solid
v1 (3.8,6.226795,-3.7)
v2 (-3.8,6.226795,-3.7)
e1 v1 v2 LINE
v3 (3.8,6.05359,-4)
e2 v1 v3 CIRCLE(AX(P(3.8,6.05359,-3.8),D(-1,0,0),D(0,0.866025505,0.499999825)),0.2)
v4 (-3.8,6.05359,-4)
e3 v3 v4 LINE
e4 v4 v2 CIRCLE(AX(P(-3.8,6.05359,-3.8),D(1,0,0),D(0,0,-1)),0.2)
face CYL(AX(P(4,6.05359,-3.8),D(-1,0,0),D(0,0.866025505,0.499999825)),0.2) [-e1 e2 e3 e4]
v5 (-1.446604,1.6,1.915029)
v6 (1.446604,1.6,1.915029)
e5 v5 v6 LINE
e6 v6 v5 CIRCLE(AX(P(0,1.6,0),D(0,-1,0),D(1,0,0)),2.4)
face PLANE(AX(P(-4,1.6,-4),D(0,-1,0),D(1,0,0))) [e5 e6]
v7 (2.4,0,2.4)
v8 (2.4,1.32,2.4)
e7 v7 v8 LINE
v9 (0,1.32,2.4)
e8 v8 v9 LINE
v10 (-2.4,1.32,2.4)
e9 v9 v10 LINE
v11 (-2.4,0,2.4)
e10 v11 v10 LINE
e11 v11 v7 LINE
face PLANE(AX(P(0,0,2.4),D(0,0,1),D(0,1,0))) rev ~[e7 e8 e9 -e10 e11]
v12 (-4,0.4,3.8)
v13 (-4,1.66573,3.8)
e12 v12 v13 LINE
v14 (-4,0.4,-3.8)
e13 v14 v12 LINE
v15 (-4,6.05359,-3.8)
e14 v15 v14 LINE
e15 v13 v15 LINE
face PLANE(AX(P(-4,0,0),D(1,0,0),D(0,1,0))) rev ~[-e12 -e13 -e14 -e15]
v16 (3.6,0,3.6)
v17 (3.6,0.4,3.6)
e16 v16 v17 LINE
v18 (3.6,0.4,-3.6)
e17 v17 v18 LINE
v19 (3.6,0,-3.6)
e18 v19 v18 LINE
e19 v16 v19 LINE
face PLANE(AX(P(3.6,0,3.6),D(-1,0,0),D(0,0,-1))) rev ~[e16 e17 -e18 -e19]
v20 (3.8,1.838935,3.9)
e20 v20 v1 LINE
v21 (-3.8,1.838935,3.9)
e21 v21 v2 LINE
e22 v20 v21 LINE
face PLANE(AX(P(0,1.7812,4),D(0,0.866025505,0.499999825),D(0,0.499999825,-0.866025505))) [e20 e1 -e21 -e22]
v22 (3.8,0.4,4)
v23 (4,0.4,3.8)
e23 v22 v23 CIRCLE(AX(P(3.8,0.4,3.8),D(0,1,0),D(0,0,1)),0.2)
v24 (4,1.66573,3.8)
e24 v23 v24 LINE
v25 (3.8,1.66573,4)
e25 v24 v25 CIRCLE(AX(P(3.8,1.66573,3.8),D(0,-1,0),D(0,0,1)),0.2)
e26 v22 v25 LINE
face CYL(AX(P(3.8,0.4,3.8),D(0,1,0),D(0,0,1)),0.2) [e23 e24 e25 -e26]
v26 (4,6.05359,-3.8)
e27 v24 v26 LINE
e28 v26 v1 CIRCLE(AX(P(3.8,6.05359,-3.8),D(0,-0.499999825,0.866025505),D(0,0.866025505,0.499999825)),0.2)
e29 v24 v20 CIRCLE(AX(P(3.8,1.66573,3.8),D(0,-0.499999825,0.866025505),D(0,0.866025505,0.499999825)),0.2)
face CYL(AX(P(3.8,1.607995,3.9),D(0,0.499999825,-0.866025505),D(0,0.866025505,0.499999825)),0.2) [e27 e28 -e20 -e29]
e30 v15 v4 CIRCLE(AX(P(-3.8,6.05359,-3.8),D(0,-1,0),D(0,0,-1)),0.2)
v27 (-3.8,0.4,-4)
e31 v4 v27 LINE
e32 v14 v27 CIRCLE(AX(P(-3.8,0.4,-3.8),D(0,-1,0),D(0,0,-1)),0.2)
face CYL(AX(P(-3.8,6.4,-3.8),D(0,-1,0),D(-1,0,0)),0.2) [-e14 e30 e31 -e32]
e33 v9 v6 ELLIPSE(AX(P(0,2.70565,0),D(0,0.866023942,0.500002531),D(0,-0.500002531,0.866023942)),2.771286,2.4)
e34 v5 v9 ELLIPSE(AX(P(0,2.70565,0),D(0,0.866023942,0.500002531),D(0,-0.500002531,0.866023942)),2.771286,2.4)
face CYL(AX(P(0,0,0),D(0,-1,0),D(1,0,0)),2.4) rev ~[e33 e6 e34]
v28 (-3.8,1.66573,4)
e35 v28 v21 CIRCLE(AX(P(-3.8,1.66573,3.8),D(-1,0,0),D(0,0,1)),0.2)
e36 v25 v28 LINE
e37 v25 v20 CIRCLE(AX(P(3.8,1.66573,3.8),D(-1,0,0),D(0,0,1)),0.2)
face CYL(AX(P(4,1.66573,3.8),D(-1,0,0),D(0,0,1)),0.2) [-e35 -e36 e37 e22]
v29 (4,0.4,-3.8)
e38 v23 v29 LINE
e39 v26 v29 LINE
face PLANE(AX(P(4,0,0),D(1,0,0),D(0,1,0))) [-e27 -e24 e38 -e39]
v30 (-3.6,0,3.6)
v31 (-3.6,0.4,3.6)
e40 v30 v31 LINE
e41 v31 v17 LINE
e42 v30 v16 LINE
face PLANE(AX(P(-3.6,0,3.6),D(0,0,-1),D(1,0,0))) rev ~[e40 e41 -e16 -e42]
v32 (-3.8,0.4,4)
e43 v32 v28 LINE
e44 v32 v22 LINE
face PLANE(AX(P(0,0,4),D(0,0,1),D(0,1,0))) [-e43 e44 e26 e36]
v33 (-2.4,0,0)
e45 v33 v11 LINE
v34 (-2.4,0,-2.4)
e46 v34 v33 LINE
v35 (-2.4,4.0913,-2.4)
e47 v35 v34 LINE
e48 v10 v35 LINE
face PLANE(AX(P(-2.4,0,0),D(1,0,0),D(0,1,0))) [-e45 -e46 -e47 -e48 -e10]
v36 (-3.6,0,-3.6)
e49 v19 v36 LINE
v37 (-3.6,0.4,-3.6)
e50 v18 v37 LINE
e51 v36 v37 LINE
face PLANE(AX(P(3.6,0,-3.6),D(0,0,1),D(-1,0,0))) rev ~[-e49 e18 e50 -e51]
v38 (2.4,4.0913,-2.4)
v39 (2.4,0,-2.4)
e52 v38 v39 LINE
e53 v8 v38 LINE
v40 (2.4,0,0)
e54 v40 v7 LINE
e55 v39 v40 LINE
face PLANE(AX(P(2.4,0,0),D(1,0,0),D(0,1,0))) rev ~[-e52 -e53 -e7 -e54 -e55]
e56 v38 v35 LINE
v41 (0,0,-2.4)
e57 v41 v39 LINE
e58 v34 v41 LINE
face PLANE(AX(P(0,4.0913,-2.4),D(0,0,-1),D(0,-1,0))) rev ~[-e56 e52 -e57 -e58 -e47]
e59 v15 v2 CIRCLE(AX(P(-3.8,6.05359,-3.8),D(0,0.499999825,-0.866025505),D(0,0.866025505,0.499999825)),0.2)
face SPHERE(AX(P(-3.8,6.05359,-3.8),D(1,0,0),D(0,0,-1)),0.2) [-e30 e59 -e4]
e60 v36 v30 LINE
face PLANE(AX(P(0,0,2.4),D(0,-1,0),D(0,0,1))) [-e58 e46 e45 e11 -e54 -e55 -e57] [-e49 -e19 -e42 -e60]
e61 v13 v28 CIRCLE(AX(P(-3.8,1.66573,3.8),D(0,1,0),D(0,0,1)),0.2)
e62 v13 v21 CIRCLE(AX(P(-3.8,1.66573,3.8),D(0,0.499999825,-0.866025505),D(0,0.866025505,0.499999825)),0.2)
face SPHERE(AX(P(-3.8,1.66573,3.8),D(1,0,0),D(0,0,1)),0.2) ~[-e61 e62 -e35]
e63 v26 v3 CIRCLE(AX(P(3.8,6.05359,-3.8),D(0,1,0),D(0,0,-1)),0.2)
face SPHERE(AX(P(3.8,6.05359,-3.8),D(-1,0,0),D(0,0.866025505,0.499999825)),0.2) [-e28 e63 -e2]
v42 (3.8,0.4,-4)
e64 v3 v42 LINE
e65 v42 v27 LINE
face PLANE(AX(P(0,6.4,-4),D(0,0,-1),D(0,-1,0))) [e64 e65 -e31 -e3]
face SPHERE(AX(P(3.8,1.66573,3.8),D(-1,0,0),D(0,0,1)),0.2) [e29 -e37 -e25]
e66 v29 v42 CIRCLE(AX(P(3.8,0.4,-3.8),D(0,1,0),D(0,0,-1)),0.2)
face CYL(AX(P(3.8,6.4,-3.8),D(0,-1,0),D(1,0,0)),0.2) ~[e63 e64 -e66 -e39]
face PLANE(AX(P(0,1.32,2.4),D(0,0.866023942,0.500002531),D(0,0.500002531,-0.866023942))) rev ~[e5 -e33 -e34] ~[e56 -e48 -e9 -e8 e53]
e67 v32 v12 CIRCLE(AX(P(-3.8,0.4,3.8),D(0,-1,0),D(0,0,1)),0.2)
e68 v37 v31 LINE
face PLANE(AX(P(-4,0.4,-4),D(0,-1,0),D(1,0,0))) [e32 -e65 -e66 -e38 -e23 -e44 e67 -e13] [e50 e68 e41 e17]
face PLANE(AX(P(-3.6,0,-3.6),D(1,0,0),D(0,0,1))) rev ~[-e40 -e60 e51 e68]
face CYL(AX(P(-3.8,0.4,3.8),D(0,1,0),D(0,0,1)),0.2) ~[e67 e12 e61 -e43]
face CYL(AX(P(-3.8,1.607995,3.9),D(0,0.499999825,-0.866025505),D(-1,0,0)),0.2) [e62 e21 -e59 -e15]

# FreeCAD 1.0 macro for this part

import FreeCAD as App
import Part
import Sketcher
from FreeCAD import Vector
Q = App.Units.Quantity


def edges_at(feature, points):
    """Names of the edges that pass closest to the given points."""
    edges = feature.Shape.Edges
    near = lambda p: min(range(len(edges)), key=lambda i: edges[i].distToShape(Part.Vertex(*p))[0])
    return sorted({f"Edge{near(p) + 1}" for p in points})


def add_polygon(sketch, points):
    """Adds a closed chain of lines whose ends are joined by coincident constraints."""
    first, n = sketch.GeometryCount, len(points)
    for a, b in zip(points, points[1:] + points[:1]):
        sketch.addGeometry(Part.LineSegment(App.Vector(*a, 0), App.Vector(*b, 0)), False)
    for i in range(n):
        sketch.addConstraint(Sketcher.Constraint("Coincident", first + i, 2, first + (i + 1) % n, 1))

doc = App.newDocument("Part")
body = doc.addObject("PartDesign::Body", "Body")

sketch1 = doc.addObject("Sketcher::SketchObject", "Sketch")
body.addObject(sketch1)
sketch1.AttachmentSupport = (doc.YZ_Plane, [""])
sketch1.MapMode = "FlatFace"
add_polygon(sketch1, [(1.8, 4), (0, 4), (0, -4), (6.4, -4)])
sketch1.addConstraint([
    Sketcher.Constraint("Horizontal", 0),
    Sketcher.Constraint("Vertical", 1),
    Sketcher.Constraint("Horizontal", 2),
    Sketcher.Constraint("Symmetric", 0, 2, 1, 2, -1, 1),
    Sketcher.Constraint("DistanceY", 1, 2, 1, 1, Q("8 mm")),
    Sketcher.Constraint("DistanceX", 2, 1, 2, 2, Q("6.4 mm")),
    Sketcher.Constraint("Angle", 3, Q("120 deg")),
])
pad1 = doc.addObject("PartDesign::Pad", "Pad")
body.addObject(pad1)
pad1.Profile = sketch1
pad1.Length = 8
pad1.Midplane = True

sketch2 = doc.addObject("Sketcher::SketchObject", "Sketch001")
body.addObject(sketch2)
sketch2.AttachmentSupport = (doc.YZ_Plane, [""])
sketch2.MapMode = "FlatFace"
add_polygon(sketch2, [(1.3, 2.4), (0, 2.4), (0, -2.4), (4.1, -2.4)])
sketch2.addConstraint([
    Sketcher.Constraint("Horizontal", 0),
    Sketcher.Constraint("Vertical", 1),
    Sketcher.Constraint("Horizontal", 2),
    Sketcher.Constraint("Symmetric", 0, 2, 1, 2, -1, 1),
    Sketcher.Constraint("DistanceX", 0, 2, 0, 1, Q("1.32 mm")),
    Sketcher.Constraint("Angle", 3, Q("120.0002 deg")),
    Sketcher.Constraint("DistanceY", 1, 2, 1, 1, Q("4.8 mm")),
])
pocket1 = doc.addObject("PartDesign::Pocket", "Pocket")
body.addObject(pocket1)
pocket1.Profile = sketch2
pocket1.Length = 4.8
pocket1.Midplane = True

sketch3 = doc.addObject("Sketcher::SketchObject", "Sketch002")
body.addObject(sketch3)
sketch3.AttachmentSupport = (doc.XZ_Plane, [""])
sketch3.MapMode = "FlatFace"
sketch3.addGeometry(Part.Circle(Vector(0, 0, 0), Vector(0, 0, 1), 2.4), False)
sketch3.addConstraint([
    Sketcher.Constraint("Coincident", 0, 3, -1, 1),
    Sketcher.Constraint("Diameter", 0, Q("4.8 mm")),
])
pocket2 = doc.addObject("PartDesign::Pocket", "Pocket001")
body.addObject(pocket2)
pocket2.Profile = sketch3
pocket2.Length = 1.6

sketch4 = doc.addObject("Sketcher::SketchObject", "Sketch003")
body.addObject(sketch4)
sketch4.AttachmentSupport = (doc.XZ_Plane, [""])
sketch4.MapMode = "FlatFace"
add_polygon(sketch4, [(-4, -4), (4, -4), (4, 4), (-4, 4)])
add_polygon(sketch4, [(-4, -4), (-4, 4), (4, 4), (4, -4)])
sketch4.addConstraint([
    Sketcher.Constraint("Horizontal", 0),
    Sketcher.Constraint("Vertical", 1),
    Sketcher.Constraint("Horizontal", 2),
    Sketcher.Constraint("Vertical", 3),
    Sketcher.Constraint("Vertical", 4),
    Sketcher.Constraint("Horizontal", 5),
    Sketcher.Constraint("Vertical", 6),
    Sketcher.Constraint("Horizontal", 7),
    Sketcher.Constraint("Symmetric", 0, 2, 2, 2, -1, 1),
    Sketcher.Constraint("Symmetric", 4, 2, 6, 2, -1, 1),
    Sketcher.Constraint("Equal", 2, 1),
    Sketcher.Constraint("Equal", 7, 4),
    Sketcher.Constraint("DistanceX", 2, 2, 4, 2, Q("0.4 mm")),
    Sketcher.Constraint("DistanceX", 0, 1, 0, 2, Q("8 mm")),
])
pocket3 = doc.addObject("PartDesign::Pocket", "Pocket002")
body.addObject(pocket3)
pocket3.Profile = sketch4
pocket3.Length = 0.4
doc.recompute()

fillet = doc.addObject("PartDesign::Fillet", "Fillet")
body.addObject(fillet)
fillet.Base = (pocket3, edges_at(pocket3, [
    (-4, 4.091, 0),
    (0, 1.781, 4),
    (-4, 1.091, 4),
    (4, 1.091, 4),
    (4, 4.091, 0),
    (4, 3.4, -4),
    (0, 6.4, -4),
    (-4, 3.4, -4),
]))
fillet.Radius = 0.2

doc.recompute()
